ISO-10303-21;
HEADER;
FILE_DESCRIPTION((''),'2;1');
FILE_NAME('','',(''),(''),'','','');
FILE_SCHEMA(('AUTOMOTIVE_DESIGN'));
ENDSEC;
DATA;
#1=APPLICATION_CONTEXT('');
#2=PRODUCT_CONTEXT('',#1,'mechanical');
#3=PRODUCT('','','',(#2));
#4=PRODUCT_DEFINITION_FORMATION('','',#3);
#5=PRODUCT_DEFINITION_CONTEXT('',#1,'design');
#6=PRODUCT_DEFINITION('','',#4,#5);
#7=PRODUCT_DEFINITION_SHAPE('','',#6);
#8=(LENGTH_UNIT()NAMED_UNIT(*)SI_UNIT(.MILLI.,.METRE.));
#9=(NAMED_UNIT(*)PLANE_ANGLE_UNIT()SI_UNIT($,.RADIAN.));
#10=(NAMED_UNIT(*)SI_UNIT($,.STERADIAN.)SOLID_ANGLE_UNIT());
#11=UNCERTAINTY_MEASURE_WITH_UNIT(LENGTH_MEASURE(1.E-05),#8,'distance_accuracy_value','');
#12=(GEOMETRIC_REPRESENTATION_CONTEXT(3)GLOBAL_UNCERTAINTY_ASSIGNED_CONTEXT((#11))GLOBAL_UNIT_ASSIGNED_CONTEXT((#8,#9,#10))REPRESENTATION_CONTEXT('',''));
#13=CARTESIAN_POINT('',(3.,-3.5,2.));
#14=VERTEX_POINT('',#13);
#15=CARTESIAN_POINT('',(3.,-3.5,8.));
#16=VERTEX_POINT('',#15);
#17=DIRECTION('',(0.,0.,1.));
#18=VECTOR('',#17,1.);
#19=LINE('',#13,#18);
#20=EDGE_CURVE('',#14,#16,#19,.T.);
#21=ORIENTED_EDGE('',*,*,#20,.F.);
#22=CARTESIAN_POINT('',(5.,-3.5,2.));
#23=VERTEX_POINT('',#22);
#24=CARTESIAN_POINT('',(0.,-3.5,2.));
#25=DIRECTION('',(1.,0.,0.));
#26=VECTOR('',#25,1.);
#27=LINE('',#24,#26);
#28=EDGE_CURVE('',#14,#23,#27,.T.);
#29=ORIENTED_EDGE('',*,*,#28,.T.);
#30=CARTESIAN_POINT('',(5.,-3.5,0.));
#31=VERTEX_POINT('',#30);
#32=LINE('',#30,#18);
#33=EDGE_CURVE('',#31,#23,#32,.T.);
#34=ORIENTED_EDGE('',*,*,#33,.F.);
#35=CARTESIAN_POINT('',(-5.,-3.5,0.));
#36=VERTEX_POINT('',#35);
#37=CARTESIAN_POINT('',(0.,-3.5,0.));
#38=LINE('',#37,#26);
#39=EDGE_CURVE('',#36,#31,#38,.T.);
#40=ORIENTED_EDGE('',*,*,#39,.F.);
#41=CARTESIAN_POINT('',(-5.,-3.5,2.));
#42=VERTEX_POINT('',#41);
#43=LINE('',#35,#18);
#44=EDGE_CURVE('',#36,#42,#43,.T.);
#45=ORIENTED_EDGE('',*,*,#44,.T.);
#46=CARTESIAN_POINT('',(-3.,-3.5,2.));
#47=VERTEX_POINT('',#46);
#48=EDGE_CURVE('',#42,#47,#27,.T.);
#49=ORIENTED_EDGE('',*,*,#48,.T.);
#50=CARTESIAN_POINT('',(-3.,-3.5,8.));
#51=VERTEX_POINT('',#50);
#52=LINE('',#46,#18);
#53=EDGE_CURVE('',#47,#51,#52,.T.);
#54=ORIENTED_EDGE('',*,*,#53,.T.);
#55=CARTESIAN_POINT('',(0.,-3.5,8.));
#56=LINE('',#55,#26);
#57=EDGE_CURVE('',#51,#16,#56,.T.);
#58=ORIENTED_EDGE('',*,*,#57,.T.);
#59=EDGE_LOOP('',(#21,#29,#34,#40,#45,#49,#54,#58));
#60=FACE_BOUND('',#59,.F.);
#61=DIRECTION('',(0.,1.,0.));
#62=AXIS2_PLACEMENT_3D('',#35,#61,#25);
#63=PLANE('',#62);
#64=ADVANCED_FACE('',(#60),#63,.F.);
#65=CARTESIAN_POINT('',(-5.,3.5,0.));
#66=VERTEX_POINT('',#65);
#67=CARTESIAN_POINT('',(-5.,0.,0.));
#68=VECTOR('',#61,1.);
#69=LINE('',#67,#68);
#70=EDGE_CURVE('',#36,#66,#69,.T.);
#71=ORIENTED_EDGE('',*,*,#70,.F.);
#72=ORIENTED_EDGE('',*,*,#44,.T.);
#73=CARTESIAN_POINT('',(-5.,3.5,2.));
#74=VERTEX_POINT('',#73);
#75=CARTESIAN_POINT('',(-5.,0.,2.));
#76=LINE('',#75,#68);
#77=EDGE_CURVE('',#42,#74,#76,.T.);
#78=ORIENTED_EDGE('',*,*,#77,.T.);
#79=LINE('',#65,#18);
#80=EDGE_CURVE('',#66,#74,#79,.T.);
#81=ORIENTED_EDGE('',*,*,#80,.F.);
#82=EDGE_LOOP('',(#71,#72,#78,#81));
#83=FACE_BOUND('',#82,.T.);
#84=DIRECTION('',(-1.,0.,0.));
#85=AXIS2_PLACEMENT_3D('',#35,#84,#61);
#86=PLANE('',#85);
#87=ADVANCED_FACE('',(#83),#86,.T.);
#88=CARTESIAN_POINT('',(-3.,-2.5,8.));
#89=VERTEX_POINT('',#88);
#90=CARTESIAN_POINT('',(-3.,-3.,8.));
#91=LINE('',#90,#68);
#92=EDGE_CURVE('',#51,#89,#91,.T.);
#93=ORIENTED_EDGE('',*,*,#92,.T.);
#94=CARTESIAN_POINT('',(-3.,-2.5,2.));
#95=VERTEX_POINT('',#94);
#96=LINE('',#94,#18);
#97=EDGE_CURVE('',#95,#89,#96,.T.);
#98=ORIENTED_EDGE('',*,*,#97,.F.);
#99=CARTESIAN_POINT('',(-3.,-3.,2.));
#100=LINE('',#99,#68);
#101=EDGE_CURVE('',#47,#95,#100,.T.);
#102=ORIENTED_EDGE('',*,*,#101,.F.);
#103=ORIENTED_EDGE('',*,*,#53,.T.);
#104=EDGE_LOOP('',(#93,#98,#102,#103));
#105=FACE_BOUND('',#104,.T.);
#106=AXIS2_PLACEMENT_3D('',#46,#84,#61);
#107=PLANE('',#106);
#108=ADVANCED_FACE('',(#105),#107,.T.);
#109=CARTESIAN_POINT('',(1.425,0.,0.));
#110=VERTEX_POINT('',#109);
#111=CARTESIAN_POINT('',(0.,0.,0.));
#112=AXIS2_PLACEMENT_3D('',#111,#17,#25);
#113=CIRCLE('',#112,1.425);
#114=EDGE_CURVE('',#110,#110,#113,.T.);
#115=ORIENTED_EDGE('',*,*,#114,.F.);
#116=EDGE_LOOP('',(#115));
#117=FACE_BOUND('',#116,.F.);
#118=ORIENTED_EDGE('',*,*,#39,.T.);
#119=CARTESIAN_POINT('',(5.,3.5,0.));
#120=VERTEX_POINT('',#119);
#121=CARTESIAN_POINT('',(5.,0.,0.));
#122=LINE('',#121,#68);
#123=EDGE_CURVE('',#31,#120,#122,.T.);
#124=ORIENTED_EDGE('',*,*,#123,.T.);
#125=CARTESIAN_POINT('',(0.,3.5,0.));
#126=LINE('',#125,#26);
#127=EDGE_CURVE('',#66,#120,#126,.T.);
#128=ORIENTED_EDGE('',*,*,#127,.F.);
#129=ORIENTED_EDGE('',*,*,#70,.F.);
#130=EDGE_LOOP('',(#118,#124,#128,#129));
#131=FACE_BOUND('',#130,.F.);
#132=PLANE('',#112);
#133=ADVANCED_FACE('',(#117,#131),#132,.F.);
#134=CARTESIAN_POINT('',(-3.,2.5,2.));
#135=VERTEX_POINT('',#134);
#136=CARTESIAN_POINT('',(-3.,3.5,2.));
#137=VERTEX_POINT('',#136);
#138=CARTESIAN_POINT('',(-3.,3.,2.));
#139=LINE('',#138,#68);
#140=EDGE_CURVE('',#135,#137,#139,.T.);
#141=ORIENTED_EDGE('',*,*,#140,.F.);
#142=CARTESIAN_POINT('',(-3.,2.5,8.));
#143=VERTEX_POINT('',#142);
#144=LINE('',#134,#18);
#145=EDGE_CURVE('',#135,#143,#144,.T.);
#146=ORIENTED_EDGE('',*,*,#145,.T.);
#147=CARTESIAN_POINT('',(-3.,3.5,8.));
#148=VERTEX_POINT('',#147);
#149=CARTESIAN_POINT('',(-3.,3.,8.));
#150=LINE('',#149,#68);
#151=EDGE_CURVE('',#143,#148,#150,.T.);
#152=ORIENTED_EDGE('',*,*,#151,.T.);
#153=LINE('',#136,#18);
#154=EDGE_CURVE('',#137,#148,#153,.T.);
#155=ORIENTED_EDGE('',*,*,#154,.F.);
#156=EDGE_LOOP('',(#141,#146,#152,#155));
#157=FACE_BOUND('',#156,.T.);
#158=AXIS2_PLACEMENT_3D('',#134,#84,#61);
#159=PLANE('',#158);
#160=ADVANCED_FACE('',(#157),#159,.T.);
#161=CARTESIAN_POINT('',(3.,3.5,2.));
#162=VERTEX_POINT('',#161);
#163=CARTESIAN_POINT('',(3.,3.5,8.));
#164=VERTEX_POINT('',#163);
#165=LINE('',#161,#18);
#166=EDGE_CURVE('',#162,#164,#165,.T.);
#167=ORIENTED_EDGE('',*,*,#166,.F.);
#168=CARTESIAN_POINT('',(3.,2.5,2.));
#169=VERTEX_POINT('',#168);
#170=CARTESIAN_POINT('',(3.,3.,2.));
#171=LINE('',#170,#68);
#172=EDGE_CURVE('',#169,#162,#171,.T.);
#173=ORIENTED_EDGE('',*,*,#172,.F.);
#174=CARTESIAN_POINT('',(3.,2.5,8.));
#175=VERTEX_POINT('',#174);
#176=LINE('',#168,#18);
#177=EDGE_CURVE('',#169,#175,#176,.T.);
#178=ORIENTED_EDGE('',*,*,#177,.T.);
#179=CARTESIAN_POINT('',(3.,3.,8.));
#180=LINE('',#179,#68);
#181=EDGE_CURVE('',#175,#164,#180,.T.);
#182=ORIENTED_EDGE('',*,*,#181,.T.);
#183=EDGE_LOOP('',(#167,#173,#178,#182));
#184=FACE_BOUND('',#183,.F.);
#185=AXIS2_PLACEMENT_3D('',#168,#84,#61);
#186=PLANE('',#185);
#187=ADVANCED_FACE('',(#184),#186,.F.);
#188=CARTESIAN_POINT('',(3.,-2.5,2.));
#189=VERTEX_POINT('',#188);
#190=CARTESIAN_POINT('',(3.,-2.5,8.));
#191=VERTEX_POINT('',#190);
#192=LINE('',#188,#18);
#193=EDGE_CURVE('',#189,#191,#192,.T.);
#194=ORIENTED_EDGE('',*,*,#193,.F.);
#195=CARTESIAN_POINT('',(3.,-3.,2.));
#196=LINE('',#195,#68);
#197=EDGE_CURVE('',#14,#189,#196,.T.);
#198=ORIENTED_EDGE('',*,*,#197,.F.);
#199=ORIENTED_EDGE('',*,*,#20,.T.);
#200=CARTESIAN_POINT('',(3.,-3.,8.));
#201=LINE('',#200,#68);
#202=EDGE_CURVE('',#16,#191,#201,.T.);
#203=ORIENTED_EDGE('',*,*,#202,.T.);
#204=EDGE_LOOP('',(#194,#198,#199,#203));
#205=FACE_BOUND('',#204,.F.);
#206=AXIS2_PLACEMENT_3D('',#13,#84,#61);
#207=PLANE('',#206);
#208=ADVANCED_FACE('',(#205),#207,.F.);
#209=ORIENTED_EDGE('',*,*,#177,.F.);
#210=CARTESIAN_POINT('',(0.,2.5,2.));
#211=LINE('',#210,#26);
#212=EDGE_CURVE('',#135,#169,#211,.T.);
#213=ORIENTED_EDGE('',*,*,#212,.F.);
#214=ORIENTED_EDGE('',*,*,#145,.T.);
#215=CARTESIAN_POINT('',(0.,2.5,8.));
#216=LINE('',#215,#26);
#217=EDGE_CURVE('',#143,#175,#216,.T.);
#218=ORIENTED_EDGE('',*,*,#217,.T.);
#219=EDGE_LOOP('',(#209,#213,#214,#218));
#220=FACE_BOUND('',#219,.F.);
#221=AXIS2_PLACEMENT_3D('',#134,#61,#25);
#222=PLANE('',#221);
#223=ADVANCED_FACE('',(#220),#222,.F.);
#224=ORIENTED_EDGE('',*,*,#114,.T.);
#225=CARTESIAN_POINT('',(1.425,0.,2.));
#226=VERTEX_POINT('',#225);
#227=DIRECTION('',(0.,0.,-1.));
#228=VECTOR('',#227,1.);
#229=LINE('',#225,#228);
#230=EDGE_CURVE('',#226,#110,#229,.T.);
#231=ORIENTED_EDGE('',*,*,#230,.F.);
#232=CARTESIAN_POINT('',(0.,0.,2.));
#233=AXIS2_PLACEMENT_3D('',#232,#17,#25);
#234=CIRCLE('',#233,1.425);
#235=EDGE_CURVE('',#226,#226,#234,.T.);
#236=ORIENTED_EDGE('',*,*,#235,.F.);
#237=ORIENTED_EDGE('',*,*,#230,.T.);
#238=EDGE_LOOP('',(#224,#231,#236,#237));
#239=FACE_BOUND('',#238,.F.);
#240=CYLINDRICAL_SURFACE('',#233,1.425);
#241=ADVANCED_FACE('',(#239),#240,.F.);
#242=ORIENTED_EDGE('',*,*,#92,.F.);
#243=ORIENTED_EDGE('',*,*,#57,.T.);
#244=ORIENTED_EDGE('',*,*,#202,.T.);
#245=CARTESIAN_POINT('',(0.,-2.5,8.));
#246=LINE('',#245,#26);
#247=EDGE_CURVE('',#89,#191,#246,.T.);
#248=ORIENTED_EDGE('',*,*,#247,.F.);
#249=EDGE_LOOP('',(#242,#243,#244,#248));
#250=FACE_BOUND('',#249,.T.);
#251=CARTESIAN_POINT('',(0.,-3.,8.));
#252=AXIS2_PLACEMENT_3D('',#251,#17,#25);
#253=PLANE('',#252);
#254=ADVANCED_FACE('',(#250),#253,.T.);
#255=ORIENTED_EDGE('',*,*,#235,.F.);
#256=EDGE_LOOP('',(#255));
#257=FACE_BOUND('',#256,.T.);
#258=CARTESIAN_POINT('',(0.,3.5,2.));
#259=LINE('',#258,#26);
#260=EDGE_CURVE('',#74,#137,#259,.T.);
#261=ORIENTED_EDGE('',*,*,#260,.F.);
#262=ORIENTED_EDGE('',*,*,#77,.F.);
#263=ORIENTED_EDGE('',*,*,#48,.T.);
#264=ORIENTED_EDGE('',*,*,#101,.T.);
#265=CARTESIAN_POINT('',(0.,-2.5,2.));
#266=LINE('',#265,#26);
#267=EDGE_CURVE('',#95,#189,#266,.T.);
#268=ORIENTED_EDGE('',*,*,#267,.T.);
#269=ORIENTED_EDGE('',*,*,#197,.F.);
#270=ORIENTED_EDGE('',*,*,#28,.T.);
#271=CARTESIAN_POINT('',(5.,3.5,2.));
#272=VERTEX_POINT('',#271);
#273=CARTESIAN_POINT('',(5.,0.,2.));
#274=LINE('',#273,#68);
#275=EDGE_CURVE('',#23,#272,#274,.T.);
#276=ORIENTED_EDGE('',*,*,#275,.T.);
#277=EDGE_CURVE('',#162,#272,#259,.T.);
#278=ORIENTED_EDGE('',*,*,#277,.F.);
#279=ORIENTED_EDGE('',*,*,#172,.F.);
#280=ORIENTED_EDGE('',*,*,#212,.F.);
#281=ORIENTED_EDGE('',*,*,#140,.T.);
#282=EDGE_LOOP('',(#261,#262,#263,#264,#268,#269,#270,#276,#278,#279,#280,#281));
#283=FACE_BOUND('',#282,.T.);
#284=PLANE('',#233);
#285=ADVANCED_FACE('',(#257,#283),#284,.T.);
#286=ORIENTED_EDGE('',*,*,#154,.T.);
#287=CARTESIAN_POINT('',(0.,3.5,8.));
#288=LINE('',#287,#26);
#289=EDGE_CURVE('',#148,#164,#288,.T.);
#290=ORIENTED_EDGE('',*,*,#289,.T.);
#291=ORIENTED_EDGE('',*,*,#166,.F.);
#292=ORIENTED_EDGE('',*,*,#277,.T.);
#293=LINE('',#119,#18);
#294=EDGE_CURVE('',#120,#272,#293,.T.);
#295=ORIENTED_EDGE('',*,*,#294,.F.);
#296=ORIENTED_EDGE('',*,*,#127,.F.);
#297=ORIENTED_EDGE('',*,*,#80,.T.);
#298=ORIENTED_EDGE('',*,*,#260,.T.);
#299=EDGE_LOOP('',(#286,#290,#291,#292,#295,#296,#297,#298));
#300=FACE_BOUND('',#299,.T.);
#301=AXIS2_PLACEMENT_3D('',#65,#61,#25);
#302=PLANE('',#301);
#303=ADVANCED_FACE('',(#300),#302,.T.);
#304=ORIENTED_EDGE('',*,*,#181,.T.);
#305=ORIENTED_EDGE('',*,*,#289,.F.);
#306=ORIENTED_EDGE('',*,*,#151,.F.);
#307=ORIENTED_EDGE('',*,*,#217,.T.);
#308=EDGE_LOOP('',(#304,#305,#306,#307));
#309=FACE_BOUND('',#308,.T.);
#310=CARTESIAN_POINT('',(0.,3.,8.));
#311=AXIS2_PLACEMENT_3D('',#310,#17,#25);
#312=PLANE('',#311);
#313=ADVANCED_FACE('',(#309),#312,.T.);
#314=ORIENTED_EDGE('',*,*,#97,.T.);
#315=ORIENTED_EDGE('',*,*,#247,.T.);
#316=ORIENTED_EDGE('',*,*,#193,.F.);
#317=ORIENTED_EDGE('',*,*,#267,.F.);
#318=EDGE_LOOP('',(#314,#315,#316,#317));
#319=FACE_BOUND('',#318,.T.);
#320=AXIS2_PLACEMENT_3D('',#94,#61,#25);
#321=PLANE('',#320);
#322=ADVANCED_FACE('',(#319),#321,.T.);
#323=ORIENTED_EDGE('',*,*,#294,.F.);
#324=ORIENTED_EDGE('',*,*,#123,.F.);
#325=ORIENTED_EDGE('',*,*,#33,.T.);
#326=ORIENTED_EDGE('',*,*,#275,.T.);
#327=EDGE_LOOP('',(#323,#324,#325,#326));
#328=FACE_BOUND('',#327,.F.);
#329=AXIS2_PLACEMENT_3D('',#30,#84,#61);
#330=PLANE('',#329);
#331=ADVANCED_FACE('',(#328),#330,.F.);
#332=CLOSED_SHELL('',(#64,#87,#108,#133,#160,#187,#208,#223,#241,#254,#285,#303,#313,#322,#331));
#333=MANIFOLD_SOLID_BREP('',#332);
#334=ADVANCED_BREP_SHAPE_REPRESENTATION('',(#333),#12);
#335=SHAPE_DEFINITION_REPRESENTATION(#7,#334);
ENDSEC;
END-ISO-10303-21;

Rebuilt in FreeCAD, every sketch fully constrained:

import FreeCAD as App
import Part
import Sketcher

V = App.Vector


def add_polygon(sketch, points):
    """Adds a closed chain of lines whose ends are joined by coincident constraints."""
    first, n = sketch.GeometryCount, len(points)
    for a, b in zip(points, points[1:] + points[:1]):
        sketch.addGeometry(Part.LineSegment(App.Vector(*a, 0), App.Vector(*b, 0)), False)
    for i in range(n):
        sketch.addConstraint(Sketcher.Constraint("Coincident", first + i, 2, first + (i + 1) % n, 1))

doc = App.newDocument("Part")
body = doc.addObject("PartDesign::Body", "Body")

# Sketch on XY plane
sketch1 = doc.addObject("Sketcher::SketchObject", "Sketch")
body.addObject(sketch1)
sketch1.AttachmentSupport = (doc.XY_Plane, [""])
sketch1.MapMode = "FlatFace"
add_polygon(sketch1, [(-5, 4), (-5, -4), (5, -4), (5, 4)])  # lines 0-3
sketch1.addConstraint(Sketcher.Constraint("Vertical", 0))
sketch1.addConstraint(Sketcher.Constraint("Horizontal", 1))
sketch1.addConstraint(Sketcher.Constraint("Vertical", 2))
sketch1.addConstraint(Sketcher.Constraint("Horizontal", 3))
sketch1.addConstraint(Sketcher.Constraint("Symmetric", 0, 2, 2, 2, -1, 1))
sketch1.addConstraint(Sketcher.Constraint("DistanceX", 1, 1, 1, 2, 10.0))
sketch1.addConstraint(Sketcher.Constraint("DistanceY", 0, 2, 0, 1, 7.0))
pad1 = doc.addObject("PartDesign::Pad", "Pad")
body.addObject(pad1)
pad1.Profile = sketch1
pad1.Length = 2

# Sketch on XY plane
sketch2 = doc.addObject("Sketcher::SketchObject", "Sketch001")
body.addObject(sketch2)
sketch2.AttachmentSupport = (doc.XY_Plane, [""])
sketch2.MapMode = "FlatFace"
sketch2.AttachmentOffset = App.Placement(V(0, 0, 2), App.Rotation())
sketch2.addGeometry(Part.Circle(V(0, 0, 0), V(0, 0, 1), 1.4), False)
sketch2.addConstraint(Sketcher.Constraint("Coincident", 0, 3, -1, 1))
sketch2.addConstraint(Sketcher.Constraint("Diameter", 0, 2.85))
pocket1 = doc.addObject("PartDesign::Pocket", "Pocket")
body.addObject(pocket1)
pocket1.Profile = sketch2
pocket1.Type = "ThroughAll"

# Sketch on XY plane
sketch3 = doc.addObject("Sketcher::SketchObject", "Sketch002")
body.addObject(sketch3)
sketch3.AttachmentSupport = (doc.XY_Plane, [""])
sketch3.MapMode = "FlatFace"
sketch3.AttachmentOffset = App.Placement(V(0, 0, 2), App.Rotation())
add_polygon(sketch3, [(-3, 3.5), (-3, 2.5), (3, 2.5), (3, 3.5)])  # lines 0-3
add_polygon(sketch3, [(-3, -2.5), (-3, -3.5), (3, -3.5), (3, -2.5)])  # lines 4-7
sketch3.addConstraint(Sketcher.Constraint("Vertical", 0))
sketch3.addConstraint(Sketcher.Constraint("Horizontal", 1))
sketch3.addConstraint(Sketcher.Constraint("Vertical", 2))
sketch3.addConstraint(Sketcher.Constraint("Horizontal", 3))
sketch3.addConstraint(Sketcher.Constraint("Vertical", 4))
sketch3.addConstraint(Sketcher.Constraint("Horizontal", 5))
sketch3.addConstraint(Sketcher.Constraint("Vertical", 6))
sketch3.addConstraint(Sketcher.Constraint("Horizontal", 7))
sketch3.addConstraint(Sketcher.Constraint("Symmetric", 2, 2, 4, 2, -1, 1))
sketch3.addConstraint(Sketcher.Constraint("Symmetric", 0, 2, 6, 2, -1, 1))
sketch3.addConstraint(Sketcher.Constraint("Vertical", 3, 2, 4, 2))
sketch3.addConstraint(Sketcher.Constraint("DistanceX", 1, 1, 1, 2, 6.0))
sketch3.addConstraint(Sketcher.Constraint("DistanceY", 0, 2, 0, 1, 1.0))
sketch3.addConstraint(Sketcher.Constraint("DistanceY", 4, 2, 0, 2, 6.0))
pad2 = doc.addObject("PartDesign::Pad", "Pad001")
body.addObject(pad2)
pad2.Profile = sketch3
pad2.Length = 6

doc.recompute()
